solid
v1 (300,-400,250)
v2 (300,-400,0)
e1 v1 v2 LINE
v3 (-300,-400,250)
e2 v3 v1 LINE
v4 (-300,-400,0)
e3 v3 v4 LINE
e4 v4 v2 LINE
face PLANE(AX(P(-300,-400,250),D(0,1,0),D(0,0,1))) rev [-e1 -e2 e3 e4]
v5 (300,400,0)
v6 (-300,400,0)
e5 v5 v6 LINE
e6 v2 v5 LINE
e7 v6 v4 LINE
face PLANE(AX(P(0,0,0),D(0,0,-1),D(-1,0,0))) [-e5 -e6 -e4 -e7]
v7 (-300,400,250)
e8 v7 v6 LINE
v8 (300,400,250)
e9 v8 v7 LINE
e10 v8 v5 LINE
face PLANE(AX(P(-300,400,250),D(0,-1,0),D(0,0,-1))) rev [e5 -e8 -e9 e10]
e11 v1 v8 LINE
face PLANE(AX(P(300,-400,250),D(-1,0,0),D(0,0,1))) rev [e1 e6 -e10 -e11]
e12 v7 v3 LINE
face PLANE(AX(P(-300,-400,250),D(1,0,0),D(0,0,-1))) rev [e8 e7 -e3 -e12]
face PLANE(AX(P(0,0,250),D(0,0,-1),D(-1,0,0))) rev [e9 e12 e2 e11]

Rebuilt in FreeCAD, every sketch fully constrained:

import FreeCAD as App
import Part
import Sketcher

V = App.Vector
Q = App.Units.Quantity

doc = App.newDocument("Part")
body = doc.addObject("PartDesign::Body", "Body")

# Sketch on XY plane
sketch1 = body.newObject("Sketcher::SketchObject", "Sketch")
sketch1.AttachmentSupport = (doc.getObject("XY_Plane"), [""])
sketch1.MapMode = "FlatFace"
sketch1.addGeometry([
    Part.LineSegment(V(-300, 400, 0), V(-300, -400, 0)),
    Part.LineSegment(V(-300, -400, 0), V(300, -400, 0)),
    Part.LineSegment(V(300, -400, 0), V(300, 400, 0)),
    Part.LineSegment(V(300, 400, 0), V(-300, 400, 0)),
], False)
sketch1.addConstraint([
    Sketcher.Constraint("Coincident", 0, 2, 1, 1),
    Sketcher.Constraint("Coincident", 1, 2, 2, 1),
    Sketcher.Constraint("Coincident", 2, 2, 3, 1),
    Sketcher.Constraint("Coincident", 3, 2, 0, 1),
    Sketcher.Constraint("Vertical", 0),
    Sketcher.Constraint("Horizontal", 1),
    Sketcher.Constraint("Vertical", 2),
    Sketcher.Constraint("Horizontal", 3),
    Sketcher.Constraint("Symmetric", 0, 2, 2, 2, -1, 1),
    Sketcher.Constraint("DistanceX", 1, 1, 1, 2, Q("600 mm")),
    Sketcher.Constraint("DistanceY", 0, 2, 0, 1, Q("800 mm")),
])
pad1 = body.newObject("PartDesign::Pad", "Pad")
pad1.Profile = sketch1
pad1.Length = 250

doc.recompute()
